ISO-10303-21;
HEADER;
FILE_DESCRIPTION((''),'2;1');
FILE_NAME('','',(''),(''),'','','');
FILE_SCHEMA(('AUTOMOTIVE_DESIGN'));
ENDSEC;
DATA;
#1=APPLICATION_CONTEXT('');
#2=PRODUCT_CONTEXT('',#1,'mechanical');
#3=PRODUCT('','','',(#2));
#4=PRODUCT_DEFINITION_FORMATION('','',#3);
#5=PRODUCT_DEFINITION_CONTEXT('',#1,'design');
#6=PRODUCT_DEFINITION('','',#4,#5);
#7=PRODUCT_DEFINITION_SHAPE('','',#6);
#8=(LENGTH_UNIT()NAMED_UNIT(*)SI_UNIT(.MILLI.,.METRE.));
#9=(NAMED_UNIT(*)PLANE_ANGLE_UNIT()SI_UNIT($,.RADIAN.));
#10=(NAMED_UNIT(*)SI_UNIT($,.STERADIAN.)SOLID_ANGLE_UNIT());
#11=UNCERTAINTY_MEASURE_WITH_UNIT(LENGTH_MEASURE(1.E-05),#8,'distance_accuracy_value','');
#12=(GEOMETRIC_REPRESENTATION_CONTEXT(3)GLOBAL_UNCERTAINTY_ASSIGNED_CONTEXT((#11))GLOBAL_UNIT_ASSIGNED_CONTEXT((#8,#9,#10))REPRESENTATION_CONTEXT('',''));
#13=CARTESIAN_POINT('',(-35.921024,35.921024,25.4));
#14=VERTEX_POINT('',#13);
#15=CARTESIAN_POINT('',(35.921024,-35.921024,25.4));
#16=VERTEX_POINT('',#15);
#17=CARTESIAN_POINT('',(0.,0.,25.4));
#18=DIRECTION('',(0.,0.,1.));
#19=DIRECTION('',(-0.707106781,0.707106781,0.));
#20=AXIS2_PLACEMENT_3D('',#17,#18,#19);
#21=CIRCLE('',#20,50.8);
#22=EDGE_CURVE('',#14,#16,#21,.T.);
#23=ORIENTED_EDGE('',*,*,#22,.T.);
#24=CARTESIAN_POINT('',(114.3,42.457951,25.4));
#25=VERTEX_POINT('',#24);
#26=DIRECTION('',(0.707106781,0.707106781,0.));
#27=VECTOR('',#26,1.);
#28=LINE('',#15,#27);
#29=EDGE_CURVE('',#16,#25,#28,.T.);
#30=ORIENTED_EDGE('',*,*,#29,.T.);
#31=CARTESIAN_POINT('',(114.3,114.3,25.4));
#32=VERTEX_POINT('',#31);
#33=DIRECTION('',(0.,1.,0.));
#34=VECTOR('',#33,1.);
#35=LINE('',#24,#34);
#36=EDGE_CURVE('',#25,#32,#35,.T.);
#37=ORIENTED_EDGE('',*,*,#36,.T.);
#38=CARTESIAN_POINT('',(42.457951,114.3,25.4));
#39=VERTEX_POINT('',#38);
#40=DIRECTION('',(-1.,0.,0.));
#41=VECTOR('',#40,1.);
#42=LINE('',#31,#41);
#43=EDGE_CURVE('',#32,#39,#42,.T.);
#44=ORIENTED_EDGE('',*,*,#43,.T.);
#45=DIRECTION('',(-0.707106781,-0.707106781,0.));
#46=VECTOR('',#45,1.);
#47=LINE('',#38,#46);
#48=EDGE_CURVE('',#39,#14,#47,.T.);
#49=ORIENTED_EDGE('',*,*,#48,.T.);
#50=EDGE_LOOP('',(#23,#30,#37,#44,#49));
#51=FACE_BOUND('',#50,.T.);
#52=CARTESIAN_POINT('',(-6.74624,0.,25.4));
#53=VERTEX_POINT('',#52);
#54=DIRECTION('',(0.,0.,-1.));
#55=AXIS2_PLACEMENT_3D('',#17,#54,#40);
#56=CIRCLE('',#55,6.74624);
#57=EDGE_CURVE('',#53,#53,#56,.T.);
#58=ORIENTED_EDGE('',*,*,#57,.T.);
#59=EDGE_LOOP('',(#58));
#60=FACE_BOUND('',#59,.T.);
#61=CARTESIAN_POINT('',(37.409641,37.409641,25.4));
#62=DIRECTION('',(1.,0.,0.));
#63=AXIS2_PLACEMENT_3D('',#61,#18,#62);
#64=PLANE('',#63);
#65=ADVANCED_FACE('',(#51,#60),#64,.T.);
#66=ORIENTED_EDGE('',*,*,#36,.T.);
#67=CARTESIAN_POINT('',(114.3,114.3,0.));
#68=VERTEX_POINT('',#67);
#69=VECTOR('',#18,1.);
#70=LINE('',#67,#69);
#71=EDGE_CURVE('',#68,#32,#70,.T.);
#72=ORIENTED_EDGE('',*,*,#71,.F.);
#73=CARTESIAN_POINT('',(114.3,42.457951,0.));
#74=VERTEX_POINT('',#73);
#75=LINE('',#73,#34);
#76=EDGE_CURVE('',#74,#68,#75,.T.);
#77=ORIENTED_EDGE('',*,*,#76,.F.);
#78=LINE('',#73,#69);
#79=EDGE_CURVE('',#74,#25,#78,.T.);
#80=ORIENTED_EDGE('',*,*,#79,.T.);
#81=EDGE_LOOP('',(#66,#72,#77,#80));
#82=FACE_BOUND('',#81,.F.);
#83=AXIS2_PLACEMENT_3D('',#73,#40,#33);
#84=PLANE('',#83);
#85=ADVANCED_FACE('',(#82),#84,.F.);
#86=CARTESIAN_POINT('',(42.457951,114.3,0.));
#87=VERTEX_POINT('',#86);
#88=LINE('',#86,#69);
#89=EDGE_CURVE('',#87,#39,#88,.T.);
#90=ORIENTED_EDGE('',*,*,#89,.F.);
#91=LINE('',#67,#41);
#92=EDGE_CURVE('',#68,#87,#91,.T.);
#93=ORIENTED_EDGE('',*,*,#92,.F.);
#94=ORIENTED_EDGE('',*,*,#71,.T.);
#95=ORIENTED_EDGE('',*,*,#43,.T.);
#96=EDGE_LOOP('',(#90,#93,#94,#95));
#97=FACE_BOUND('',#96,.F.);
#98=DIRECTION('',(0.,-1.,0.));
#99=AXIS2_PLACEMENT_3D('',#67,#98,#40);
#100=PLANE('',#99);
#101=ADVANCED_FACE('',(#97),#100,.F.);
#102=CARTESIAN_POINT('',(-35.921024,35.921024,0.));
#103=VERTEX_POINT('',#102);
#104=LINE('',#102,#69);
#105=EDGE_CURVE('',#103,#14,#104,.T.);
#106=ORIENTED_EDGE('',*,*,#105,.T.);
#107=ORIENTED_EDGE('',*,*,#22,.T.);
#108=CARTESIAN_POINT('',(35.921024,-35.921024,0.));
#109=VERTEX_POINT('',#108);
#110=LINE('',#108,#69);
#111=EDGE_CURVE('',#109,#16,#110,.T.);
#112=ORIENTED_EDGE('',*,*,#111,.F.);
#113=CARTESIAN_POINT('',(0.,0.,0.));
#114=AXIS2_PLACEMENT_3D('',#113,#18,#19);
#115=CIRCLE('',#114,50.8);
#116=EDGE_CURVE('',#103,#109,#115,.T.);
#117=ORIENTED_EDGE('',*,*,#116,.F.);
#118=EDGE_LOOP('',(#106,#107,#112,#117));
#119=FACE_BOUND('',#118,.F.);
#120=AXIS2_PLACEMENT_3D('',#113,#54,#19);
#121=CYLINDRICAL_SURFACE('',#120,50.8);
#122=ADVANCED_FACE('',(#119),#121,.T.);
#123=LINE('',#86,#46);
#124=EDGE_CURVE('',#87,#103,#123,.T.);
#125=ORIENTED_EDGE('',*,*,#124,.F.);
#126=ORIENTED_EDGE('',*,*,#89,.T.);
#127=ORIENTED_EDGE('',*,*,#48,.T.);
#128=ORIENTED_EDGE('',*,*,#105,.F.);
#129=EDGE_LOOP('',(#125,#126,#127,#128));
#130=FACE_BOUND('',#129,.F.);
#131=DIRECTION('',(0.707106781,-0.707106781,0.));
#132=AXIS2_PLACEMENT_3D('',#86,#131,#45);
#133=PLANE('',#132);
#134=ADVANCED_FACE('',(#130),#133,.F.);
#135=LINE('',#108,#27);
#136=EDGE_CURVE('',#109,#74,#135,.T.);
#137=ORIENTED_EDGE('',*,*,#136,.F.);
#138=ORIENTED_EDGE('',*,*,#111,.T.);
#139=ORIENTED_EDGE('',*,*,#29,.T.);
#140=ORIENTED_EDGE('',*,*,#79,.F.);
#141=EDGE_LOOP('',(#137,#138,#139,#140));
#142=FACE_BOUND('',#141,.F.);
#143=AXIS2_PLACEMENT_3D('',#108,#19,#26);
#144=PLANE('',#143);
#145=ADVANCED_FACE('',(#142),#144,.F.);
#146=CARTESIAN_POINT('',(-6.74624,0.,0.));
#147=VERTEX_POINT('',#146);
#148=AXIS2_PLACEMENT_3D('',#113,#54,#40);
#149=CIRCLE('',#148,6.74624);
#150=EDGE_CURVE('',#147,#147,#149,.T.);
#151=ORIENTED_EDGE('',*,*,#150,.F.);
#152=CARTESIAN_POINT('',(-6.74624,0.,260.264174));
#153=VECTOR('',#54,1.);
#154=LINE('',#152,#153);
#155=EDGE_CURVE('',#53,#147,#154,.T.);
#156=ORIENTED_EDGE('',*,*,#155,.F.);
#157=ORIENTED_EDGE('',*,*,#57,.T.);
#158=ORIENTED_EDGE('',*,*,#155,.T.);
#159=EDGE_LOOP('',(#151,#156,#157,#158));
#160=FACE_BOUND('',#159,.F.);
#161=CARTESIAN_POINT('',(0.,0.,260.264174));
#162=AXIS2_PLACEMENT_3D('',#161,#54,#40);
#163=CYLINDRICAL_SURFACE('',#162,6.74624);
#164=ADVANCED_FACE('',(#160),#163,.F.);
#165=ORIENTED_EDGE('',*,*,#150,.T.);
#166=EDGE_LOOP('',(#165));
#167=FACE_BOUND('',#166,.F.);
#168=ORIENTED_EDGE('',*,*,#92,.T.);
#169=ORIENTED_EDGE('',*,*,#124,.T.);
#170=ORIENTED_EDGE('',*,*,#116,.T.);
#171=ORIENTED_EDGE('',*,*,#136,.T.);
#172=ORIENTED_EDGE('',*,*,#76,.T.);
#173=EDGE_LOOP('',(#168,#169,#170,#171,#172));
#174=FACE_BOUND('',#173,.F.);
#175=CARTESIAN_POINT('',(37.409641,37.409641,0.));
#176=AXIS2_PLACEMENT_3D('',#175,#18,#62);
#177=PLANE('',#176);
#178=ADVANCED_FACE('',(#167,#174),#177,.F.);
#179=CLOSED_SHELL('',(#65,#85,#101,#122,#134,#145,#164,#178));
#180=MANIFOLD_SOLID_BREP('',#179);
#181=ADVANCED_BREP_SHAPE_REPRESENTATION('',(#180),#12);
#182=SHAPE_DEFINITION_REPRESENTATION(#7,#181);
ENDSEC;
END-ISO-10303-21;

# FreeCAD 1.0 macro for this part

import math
import FreeCAD as App
import Part
import Sketcher
from FreeCAD import Vector
Q = App.Units.Quantity

doc = App.newDocument("Part")
body = doc.addObject("PartDesign::Body", "Body")

sketch1 = doc.addObject("Sketcher::SketchObject", "Sketch")
body.addObject(sketch1)
sketch1.AttachmentSupport = (doc.XY_Plane, [""])
sketch1.MapMode = "FlatFace"
sketch1.addGeometry(Part.LineSegment(Vector(42, 114, 0), Vector(-36, 36, 0)), False)
sketch1.addGeometry(Part.ArcOfCircle(Part.Circle(Vector(0, 0, 0), Vector(0, 0, 1), 51), math.radians(135), math.radians(315)), False)
sketch1.addGeometry(Part.LineSegment(Vector(36, -36, 0), Vector(114, 42, 0)), False)
sketch1.addGeometry(Part.LineSegment(Vector(114, 42, 0), Vector(114, 114, 0)), False)
sketch1.addGeometry(Part.LineSegment(Vector(114, 114, 0), Vector(42, 114, 0)), False)
sketch1.addConstraint(Sketcher.Constraint("Tangent", 0, 2, 1, 1))
sketch1.addConstraint(Sketcher.Constraint("Tangent", 1, 2, 2, 1))
sketch1.addConstraint(Sketcher.Constraint("Coincident", 2, 2, 3, 1))
sketch1.addConstraint(Sketcher.Constraint("Coincident", 3, 2, 4, 1))
sketch1.addConstraint(Sketcher.Constraint("Coincident", 4, 2, 0, 1))
sketch1.addConstraint(Sketcher.Constraint("Vertical", 3))
sketch1.addConstraint(Sketcher.Constraint("Horizontal", 4))
sketch1.addConstraint(Sketcher.Constraint("Coincident", 1, 3, -1, 1))
sketch1.addConstraint(Sketcher.Constraint("Parallel", 0, 2))
sketch1.addConstraint(Sketcher.Constraint("Equal", 4, 3))
sketch1.addConstraint(Sketcher.Constraint("Equal", 0, 2))
sketch1.addConstraint(Sketcher.Constraint("Radius", 1, Q("2 in")))
sketch1.addConstraint(Sketcher.Constraint("DistanceX", -1, 1, 2, 2, Q("4.5 in")))
pad1 = doc.addObject("PartDesign::Pad", "Pad")
body.addObject(pad1)
pad1.Profile = sketch1
pad1.Length = Q("1 in")

sketch2 = doc.addObject("Sketcher::SketchObject", "Sketch001")
body.addObject(sketch2)
sketch2.AttachmentSupport = (doc.XY_Plane, [""])
sketch2.MapMode = "FlatFace"
sketch2.AttachmentOffset = App.Placement(Vector(0, 0, 1 * 25.4), App.Rotation())
sketch2.addGeometry(Part.Circle(Vector(0, 0, 0), Vector(0, 0, 1), 7), False)
sketch2.addConstraint(Sketcher.Constraint("Coincident", 0, 3, -1, 1))
sketch2.addConstraint(Sketcher.Constraint("Diameter", 0, Q("0.5312 in")))
doc.recompute()
hole = doc.addObject("PartDesign::Hole", "Hole")
body.addObject(hole)
hole.Profile = sketch2
hole.ThreadType = "None"
hole.Diameter = Q("0.5312 in")
hole.DepthType = "ThroughAll"

doc.recompute()
